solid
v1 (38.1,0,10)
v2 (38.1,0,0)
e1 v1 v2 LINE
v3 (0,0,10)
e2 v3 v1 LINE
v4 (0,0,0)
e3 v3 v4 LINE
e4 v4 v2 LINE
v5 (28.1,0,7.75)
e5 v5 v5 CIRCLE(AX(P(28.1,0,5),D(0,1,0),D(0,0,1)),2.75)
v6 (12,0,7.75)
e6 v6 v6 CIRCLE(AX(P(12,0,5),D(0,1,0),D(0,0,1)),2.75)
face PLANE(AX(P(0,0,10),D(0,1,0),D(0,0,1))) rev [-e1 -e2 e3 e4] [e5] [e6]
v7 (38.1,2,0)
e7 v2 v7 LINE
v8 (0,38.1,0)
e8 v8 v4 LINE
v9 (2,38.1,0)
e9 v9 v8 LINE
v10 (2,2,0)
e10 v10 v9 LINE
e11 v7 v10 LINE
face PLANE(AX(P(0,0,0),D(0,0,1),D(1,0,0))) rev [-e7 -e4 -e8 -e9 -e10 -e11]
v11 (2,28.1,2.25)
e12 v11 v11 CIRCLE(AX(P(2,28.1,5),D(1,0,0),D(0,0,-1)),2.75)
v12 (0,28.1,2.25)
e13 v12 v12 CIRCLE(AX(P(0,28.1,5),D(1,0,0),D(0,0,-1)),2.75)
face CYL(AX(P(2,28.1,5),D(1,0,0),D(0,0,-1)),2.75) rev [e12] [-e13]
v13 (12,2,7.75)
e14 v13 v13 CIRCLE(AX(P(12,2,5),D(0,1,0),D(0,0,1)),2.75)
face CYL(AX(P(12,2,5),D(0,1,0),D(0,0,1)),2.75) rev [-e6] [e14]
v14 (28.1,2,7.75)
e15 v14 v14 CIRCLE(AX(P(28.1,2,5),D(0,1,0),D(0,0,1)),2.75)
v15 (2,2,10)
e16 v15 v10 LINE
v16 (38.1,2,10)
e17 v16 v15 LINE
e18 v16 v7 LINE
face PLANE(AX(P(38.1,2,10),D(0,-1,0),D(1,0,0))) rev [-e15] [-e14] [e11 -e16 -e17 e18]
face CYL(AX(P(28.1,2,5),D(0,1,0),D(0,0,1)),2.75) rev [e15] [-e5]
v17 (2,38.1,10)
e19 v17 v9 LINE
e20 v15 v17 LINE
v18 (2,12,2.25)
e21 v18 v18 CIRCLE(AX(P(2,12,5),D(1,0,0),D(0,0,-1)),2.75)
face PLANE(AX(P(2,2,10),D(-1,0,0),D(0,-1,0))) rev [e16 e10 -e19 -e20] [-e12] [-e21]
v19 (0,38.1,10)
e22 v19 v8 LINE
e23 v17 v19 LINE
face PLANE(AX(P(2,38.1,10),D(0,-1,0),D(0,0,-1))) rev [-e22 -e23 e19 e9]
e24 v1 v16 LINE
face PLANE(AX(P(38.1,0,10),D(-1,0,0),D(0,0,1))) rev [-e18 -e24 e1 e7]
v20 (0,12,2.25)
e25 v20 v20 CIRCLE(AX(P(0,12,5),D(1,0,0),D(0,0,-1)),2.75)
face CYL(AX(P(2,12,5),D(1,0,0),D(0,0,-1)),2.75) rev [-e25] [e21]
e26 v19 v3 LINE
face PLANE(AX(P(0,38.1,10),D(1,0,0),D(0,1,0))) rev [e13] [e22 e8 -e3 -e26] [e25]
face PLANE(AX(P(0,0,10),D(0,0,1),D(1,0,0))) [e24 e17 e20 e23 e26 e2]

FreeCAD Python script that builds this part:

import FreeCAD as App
import Part
import Sketcher

doc = App.newDocument("Part")
body = doc.addObject("PartDesign::Body", "Body")

# Sketch on XY plane
sketch1 = doc.addObject("Sketcher::SketchObject", "Sketch")
body.addObject(sketch1)
sketch1.AttachmentSupport = (doc.XY_Plane, [""])
sketch1.MapMode = "FlatFace"
sketch1.addGeometry([
    Part.LineSegment(App.Vector(0, 0, 0), App.Vector(38.1, 0, 0)),  # 0
    Part.LineSegment(App.Vector(38.1, 0, 0), App.Vector(38.1, 2, 0)),  # 1
    Part.LineSegment(App.Vector(38.1, 2, 0), App.Vector(2, 2, 0)),  # 2
    Part.LineSegment(App.Vector(2, 2, 0), App.Vector(2, 38.1, 0)),  # 3
    Part.LineSegment(App.Vector(2, 38.1, 0), App.Vector(0, 38.1, 0)),  # 4
    Part.LineSegment(App.Vector(0, 38.1, 0), App.Vector(0, 0, 0)),  # 5
], False)
sketch1.addConstraint([
    Sketcher.Constraint("Coincident", 0, 2, 1, 1),
    Sketcher.Constraint("Coincident", 1, 2, 2, 1),
    Sketcher.Constraint("Coincident", 2, 2, 3, 1),
    Sketcher.Constraint("Coincident", 3, 2, 4, 1),
    Sketcher.Constraint("Coincident", 4, 2, 5, 1),
    Sketcher.Constraint("Coincident", 5, 2, 0, 1),
    Sketcher.Constraint("Horizontal", 0),
    Sketcher.Constraint("Vertical", 1),
    Sketcher.Constraint("Horizontal", 2),
    Sketcher.Constraint("Vertical", 3),
    Sketcher.Constraint("Horizontal", 4),
    Sketcher.Constraint("Vertical", 5),
    Sketcher.Constraint("Coincident", 5, 2, -1, 1),
    Sketcher.Constraint("Equal", 4, 1),
    Sketcher.Constraint("Equal", 2, 3),
    Sketcher.Constraint("DistanceX", 4, 2, 4, 1, 2.0),
    Sketcher.Constraint("DistanceX", 0, 1, 0, 2, 38.1),
])
pad1 = doc.addObject("PartDesign::Pad", "Pad")
body.addObject(pad1)
pad1.Profile = sketch1
pad1.Length = 10

# Sketch on YZ plane
sketch2 = doc.addObject("Sketcher::SketchObject", "Sketch001")
body.addObject(sketch2)
sketch2.AttachmentSupport = (doc.YZ_Plane, [""])
sketch2.MapMode = "FlatFace"
sketch2.AttachmentOffset = App.Placement(App.Vector(0, 0, 2), App.Rotation())
sketch2.addGeometry([
    Part.Circle(App.Vector(12, 5, 0), App.Vector(0, 0, 1), 2.8),
    Part.Circle(App.Vector(28.1, 5, 0), App.Vector(0, 0, 1), 2.8),
], False)
sketch2.addConstraint([
    Sketcher.Constraint("Equal", 0, 1),
    Sketcher.Constraint("Horizontal", 0, 3, 1, 3),
    Sketcher.Constraint("Diameter", 0, 5.5),
    Sketcher.Constraint("DistanceX", -1, 1, 0, 3, 12.0),
    Sketcher.Constraint("DistanceY", -1, 1, 0, 3, 5.0),
    Sketcher.Constraint("DistanceX", -1, 1, 1, 3, 28.1),
])
doc.recompute()
hole = doc.addObject("PartDesign::Hole", "Hole")
body.addObject(hole)
hole.Profile = sketch2
hole.ThreadType = "None"
hole.Diameter = 5.5
hole.DepthType = "ThroughAll"

# Sketch on XZ plane
sketch3 = doc.addObject("Sketcher::SketchObject", "Sketch002")
body.addObject(sketch3)
sketch3.AttachmentSupport = (doc.XZ_Plane, [""])
sketch3.MapMode = "FlatFace"
sketch3.AttachmentOffset = App.Placement(App.Vector(0, 0, -2), App.Rotation())
sketch3.addGeometry([
    Part.Circle(App.Vector(12, 5, 0), App.Vector(0, 0, 1), 2.8),
    Part.Circle(App.Vector(28.1, 5, 0), App.Vector(0, 0, 1), 2.8),
], False)
sketch3.addConstraint([
    Sketcher.Constraint("Equal", 0, 1),
    Sketcher.Constraint("Horizontal", 0, 3, 1, 3),
    Sketcher.Constraint("Diameter", 0, 5.5),
    Sketcher.Constraint("DistanceX", -1, 1, 0, 3, 12.0),
    Sketcher.Constraint("DistanceY", -1, 1, 0, 3, 5.0),
    Sketcher.Constraint("DistanceX", -1, 1, 1, 3, 28.1),
])
doc.recompute()
hole2 = doc.addObject("PartDesign::Hole", "Hole001")
body.addObject(hole2)
hole2.Profile = sketch3
hole2.ThreadType = "None"
hole2.Diameter = 5.5
hole2.DepthType = "ThroughAll"
hole2.Reversed = True

doc.recompute()
